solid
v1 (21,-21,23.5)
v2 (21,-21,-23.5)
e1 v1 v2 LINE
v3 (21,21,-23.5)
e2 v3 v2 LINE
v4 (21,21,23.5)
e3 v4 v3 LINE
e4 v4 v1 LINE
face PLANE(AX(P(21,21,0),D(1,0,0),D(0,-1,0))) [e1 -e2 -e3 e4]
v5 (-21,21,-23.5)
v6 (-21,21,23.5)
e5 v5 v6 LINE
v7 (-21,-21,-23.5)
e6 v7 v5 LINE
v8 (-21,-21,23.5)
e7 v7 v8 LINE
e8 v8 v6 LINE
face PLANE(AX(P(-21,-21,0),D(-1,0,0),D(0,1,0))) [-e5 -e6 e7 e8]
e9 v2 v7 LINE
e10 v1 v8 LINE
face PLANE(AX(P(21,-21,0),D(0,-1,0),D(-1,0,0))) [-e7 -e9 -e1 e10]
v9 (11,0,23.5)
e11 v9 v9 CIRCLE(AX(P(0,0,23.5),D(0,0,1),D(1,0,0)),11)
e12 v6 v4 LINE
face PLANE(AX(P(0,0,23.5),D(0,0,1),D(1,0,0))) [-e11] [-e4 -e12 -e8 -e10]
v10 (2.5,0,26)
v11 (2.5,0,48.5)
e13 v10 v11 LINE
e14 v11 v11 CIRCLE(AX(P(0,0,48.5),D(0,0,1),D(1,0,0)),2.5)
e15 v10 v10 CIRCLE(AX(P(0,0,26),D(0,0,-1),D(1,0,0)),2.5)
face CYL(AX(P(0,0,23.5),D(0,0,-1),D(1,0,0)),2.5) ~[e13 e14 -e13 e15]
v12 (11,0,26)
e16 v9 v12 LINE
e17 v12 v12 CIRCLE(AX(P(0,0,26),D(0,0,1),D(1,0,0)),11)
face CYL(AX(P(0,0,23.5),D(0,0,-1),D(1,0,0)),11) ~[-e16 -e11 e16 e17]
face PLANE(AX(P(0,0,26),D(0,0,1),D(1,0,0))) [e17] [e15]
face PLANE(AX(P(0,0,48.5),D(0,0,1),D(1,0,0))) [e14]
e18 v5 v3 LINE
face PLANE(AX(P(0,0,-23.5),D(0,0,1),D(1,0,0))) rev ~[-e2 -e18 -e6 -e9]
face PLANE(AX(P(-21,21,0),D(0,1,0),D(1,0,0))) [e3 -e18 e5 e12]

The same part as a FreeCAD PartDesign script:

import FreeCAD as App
import Part
import Sketcher

V = App.Vector
Q = App.Units.Quantity


def add_polygon(sketch, points):
    """Adds a closed chain of lines whose ends are joined by coincident constraints."""
    first, n = sketch.GeometryCount, len(points)
    for a, b in zip(points, points[1:] + points[:1]):
        sketch.addGeometry(Part.LineSegment(App.Vector(*a, 0), App.Vector(*b, 0)), False)
    for i in range(n):
        sketch.addConstraint(Sketcher.Constraint("Coincident", first + i, 2, first + (i + 1) % n, 1))

doc = App.newDocument("Part")
body = doc.addObject("PartDesign::Body", "Body")

sketch1 = doc.addObject("Sketcher::SketchObject", "Sketch")
body.addObject(sketch1)
sketch1.AttachmentSupport = (doc.XY_Plane, [""])
sketch1.MapMode = "FlatFace"
add_polygon(sketch1, [(21, 21), (-21, 21), (-21, -21), (21, -21)])
sketch1.addConstraint([
    Sketcher.Constraint("Horizontal", 0),
    Sketcher.Constraint("Vertical", 1),
    Sketcher.Constraint("Horizontal", 2),
    Sketcher.Constraint("Vertical", 3),
    Sketcher.Constraint("Symmetric", 0, 2, 2, 2, -1, 1),
    Sketcher.Constraint("Equal", 2, 1),
    Sketcher.Constraint("DistanceX", 0, 2, 0, 1, Q("42 mm")),
])
pad1 = doc.addObject("PartDesign::Pad", "Pad")
body.addObject(pad1)
pad1.Profile = sketch1
pad1.Length = 47
pad1.Midplane = True

sketch2 = doc.addObject("Sketcher::SketchObject", "Sketch001")
body.addObject(sketch2)
sketch2.AttachmentSupport = (doc.XY_Plane, [""])
sketch2.MapMode = "FlatFace"
sketch2.AttachmentOffset = App.Placement(V(0, 0, 23.5), App.Rotation())
sketch2.addGeometry(Part.Circle(V(0, 0, 0), V(0, 0, 1), 2.5), False)
sketch2.addConstraint([
    Sketcher.Constraint("Coincident", 0, 3, -1, 1),
    Sketcher.Constraint("Diameter", 0, Q("5 mm")),
])
pad2 = doc.addObject("PartDesign::Pad", "Pad001")
body.addObject(pad2)
pad2.Profile = sketch2
pad2.Length = 25

sketch3 = doc.addObject("Sketcher::SketchObject", "Sketch002")
body.addObject(sketch3)
sketch3.AttachmentSupport = (doc.XY_Plane, [""])
sketch3.MapMode = "FlatFace"
sketch3.AttachmentOffset = App.Placement(V(0, 0, 23.5), App.Rotation())
sketch3.addGeometry(Part.Circle(V(0, 0, 0), V(0, 0, 1), 11), False)
sketch3.addConstraint([
    Sketcher.Constraint("Coincident", 0, 3, -1, 1),
    Sketcher.Constraint("Diameter", 0, Q("22 mm")),
])
pad3 = doc.addObject("PartDesign::Pad", "Pad002")
body.addObject(pad3)
pad3.Profile = sketch3
pad3.Length = 2.5

doc.recompute()
